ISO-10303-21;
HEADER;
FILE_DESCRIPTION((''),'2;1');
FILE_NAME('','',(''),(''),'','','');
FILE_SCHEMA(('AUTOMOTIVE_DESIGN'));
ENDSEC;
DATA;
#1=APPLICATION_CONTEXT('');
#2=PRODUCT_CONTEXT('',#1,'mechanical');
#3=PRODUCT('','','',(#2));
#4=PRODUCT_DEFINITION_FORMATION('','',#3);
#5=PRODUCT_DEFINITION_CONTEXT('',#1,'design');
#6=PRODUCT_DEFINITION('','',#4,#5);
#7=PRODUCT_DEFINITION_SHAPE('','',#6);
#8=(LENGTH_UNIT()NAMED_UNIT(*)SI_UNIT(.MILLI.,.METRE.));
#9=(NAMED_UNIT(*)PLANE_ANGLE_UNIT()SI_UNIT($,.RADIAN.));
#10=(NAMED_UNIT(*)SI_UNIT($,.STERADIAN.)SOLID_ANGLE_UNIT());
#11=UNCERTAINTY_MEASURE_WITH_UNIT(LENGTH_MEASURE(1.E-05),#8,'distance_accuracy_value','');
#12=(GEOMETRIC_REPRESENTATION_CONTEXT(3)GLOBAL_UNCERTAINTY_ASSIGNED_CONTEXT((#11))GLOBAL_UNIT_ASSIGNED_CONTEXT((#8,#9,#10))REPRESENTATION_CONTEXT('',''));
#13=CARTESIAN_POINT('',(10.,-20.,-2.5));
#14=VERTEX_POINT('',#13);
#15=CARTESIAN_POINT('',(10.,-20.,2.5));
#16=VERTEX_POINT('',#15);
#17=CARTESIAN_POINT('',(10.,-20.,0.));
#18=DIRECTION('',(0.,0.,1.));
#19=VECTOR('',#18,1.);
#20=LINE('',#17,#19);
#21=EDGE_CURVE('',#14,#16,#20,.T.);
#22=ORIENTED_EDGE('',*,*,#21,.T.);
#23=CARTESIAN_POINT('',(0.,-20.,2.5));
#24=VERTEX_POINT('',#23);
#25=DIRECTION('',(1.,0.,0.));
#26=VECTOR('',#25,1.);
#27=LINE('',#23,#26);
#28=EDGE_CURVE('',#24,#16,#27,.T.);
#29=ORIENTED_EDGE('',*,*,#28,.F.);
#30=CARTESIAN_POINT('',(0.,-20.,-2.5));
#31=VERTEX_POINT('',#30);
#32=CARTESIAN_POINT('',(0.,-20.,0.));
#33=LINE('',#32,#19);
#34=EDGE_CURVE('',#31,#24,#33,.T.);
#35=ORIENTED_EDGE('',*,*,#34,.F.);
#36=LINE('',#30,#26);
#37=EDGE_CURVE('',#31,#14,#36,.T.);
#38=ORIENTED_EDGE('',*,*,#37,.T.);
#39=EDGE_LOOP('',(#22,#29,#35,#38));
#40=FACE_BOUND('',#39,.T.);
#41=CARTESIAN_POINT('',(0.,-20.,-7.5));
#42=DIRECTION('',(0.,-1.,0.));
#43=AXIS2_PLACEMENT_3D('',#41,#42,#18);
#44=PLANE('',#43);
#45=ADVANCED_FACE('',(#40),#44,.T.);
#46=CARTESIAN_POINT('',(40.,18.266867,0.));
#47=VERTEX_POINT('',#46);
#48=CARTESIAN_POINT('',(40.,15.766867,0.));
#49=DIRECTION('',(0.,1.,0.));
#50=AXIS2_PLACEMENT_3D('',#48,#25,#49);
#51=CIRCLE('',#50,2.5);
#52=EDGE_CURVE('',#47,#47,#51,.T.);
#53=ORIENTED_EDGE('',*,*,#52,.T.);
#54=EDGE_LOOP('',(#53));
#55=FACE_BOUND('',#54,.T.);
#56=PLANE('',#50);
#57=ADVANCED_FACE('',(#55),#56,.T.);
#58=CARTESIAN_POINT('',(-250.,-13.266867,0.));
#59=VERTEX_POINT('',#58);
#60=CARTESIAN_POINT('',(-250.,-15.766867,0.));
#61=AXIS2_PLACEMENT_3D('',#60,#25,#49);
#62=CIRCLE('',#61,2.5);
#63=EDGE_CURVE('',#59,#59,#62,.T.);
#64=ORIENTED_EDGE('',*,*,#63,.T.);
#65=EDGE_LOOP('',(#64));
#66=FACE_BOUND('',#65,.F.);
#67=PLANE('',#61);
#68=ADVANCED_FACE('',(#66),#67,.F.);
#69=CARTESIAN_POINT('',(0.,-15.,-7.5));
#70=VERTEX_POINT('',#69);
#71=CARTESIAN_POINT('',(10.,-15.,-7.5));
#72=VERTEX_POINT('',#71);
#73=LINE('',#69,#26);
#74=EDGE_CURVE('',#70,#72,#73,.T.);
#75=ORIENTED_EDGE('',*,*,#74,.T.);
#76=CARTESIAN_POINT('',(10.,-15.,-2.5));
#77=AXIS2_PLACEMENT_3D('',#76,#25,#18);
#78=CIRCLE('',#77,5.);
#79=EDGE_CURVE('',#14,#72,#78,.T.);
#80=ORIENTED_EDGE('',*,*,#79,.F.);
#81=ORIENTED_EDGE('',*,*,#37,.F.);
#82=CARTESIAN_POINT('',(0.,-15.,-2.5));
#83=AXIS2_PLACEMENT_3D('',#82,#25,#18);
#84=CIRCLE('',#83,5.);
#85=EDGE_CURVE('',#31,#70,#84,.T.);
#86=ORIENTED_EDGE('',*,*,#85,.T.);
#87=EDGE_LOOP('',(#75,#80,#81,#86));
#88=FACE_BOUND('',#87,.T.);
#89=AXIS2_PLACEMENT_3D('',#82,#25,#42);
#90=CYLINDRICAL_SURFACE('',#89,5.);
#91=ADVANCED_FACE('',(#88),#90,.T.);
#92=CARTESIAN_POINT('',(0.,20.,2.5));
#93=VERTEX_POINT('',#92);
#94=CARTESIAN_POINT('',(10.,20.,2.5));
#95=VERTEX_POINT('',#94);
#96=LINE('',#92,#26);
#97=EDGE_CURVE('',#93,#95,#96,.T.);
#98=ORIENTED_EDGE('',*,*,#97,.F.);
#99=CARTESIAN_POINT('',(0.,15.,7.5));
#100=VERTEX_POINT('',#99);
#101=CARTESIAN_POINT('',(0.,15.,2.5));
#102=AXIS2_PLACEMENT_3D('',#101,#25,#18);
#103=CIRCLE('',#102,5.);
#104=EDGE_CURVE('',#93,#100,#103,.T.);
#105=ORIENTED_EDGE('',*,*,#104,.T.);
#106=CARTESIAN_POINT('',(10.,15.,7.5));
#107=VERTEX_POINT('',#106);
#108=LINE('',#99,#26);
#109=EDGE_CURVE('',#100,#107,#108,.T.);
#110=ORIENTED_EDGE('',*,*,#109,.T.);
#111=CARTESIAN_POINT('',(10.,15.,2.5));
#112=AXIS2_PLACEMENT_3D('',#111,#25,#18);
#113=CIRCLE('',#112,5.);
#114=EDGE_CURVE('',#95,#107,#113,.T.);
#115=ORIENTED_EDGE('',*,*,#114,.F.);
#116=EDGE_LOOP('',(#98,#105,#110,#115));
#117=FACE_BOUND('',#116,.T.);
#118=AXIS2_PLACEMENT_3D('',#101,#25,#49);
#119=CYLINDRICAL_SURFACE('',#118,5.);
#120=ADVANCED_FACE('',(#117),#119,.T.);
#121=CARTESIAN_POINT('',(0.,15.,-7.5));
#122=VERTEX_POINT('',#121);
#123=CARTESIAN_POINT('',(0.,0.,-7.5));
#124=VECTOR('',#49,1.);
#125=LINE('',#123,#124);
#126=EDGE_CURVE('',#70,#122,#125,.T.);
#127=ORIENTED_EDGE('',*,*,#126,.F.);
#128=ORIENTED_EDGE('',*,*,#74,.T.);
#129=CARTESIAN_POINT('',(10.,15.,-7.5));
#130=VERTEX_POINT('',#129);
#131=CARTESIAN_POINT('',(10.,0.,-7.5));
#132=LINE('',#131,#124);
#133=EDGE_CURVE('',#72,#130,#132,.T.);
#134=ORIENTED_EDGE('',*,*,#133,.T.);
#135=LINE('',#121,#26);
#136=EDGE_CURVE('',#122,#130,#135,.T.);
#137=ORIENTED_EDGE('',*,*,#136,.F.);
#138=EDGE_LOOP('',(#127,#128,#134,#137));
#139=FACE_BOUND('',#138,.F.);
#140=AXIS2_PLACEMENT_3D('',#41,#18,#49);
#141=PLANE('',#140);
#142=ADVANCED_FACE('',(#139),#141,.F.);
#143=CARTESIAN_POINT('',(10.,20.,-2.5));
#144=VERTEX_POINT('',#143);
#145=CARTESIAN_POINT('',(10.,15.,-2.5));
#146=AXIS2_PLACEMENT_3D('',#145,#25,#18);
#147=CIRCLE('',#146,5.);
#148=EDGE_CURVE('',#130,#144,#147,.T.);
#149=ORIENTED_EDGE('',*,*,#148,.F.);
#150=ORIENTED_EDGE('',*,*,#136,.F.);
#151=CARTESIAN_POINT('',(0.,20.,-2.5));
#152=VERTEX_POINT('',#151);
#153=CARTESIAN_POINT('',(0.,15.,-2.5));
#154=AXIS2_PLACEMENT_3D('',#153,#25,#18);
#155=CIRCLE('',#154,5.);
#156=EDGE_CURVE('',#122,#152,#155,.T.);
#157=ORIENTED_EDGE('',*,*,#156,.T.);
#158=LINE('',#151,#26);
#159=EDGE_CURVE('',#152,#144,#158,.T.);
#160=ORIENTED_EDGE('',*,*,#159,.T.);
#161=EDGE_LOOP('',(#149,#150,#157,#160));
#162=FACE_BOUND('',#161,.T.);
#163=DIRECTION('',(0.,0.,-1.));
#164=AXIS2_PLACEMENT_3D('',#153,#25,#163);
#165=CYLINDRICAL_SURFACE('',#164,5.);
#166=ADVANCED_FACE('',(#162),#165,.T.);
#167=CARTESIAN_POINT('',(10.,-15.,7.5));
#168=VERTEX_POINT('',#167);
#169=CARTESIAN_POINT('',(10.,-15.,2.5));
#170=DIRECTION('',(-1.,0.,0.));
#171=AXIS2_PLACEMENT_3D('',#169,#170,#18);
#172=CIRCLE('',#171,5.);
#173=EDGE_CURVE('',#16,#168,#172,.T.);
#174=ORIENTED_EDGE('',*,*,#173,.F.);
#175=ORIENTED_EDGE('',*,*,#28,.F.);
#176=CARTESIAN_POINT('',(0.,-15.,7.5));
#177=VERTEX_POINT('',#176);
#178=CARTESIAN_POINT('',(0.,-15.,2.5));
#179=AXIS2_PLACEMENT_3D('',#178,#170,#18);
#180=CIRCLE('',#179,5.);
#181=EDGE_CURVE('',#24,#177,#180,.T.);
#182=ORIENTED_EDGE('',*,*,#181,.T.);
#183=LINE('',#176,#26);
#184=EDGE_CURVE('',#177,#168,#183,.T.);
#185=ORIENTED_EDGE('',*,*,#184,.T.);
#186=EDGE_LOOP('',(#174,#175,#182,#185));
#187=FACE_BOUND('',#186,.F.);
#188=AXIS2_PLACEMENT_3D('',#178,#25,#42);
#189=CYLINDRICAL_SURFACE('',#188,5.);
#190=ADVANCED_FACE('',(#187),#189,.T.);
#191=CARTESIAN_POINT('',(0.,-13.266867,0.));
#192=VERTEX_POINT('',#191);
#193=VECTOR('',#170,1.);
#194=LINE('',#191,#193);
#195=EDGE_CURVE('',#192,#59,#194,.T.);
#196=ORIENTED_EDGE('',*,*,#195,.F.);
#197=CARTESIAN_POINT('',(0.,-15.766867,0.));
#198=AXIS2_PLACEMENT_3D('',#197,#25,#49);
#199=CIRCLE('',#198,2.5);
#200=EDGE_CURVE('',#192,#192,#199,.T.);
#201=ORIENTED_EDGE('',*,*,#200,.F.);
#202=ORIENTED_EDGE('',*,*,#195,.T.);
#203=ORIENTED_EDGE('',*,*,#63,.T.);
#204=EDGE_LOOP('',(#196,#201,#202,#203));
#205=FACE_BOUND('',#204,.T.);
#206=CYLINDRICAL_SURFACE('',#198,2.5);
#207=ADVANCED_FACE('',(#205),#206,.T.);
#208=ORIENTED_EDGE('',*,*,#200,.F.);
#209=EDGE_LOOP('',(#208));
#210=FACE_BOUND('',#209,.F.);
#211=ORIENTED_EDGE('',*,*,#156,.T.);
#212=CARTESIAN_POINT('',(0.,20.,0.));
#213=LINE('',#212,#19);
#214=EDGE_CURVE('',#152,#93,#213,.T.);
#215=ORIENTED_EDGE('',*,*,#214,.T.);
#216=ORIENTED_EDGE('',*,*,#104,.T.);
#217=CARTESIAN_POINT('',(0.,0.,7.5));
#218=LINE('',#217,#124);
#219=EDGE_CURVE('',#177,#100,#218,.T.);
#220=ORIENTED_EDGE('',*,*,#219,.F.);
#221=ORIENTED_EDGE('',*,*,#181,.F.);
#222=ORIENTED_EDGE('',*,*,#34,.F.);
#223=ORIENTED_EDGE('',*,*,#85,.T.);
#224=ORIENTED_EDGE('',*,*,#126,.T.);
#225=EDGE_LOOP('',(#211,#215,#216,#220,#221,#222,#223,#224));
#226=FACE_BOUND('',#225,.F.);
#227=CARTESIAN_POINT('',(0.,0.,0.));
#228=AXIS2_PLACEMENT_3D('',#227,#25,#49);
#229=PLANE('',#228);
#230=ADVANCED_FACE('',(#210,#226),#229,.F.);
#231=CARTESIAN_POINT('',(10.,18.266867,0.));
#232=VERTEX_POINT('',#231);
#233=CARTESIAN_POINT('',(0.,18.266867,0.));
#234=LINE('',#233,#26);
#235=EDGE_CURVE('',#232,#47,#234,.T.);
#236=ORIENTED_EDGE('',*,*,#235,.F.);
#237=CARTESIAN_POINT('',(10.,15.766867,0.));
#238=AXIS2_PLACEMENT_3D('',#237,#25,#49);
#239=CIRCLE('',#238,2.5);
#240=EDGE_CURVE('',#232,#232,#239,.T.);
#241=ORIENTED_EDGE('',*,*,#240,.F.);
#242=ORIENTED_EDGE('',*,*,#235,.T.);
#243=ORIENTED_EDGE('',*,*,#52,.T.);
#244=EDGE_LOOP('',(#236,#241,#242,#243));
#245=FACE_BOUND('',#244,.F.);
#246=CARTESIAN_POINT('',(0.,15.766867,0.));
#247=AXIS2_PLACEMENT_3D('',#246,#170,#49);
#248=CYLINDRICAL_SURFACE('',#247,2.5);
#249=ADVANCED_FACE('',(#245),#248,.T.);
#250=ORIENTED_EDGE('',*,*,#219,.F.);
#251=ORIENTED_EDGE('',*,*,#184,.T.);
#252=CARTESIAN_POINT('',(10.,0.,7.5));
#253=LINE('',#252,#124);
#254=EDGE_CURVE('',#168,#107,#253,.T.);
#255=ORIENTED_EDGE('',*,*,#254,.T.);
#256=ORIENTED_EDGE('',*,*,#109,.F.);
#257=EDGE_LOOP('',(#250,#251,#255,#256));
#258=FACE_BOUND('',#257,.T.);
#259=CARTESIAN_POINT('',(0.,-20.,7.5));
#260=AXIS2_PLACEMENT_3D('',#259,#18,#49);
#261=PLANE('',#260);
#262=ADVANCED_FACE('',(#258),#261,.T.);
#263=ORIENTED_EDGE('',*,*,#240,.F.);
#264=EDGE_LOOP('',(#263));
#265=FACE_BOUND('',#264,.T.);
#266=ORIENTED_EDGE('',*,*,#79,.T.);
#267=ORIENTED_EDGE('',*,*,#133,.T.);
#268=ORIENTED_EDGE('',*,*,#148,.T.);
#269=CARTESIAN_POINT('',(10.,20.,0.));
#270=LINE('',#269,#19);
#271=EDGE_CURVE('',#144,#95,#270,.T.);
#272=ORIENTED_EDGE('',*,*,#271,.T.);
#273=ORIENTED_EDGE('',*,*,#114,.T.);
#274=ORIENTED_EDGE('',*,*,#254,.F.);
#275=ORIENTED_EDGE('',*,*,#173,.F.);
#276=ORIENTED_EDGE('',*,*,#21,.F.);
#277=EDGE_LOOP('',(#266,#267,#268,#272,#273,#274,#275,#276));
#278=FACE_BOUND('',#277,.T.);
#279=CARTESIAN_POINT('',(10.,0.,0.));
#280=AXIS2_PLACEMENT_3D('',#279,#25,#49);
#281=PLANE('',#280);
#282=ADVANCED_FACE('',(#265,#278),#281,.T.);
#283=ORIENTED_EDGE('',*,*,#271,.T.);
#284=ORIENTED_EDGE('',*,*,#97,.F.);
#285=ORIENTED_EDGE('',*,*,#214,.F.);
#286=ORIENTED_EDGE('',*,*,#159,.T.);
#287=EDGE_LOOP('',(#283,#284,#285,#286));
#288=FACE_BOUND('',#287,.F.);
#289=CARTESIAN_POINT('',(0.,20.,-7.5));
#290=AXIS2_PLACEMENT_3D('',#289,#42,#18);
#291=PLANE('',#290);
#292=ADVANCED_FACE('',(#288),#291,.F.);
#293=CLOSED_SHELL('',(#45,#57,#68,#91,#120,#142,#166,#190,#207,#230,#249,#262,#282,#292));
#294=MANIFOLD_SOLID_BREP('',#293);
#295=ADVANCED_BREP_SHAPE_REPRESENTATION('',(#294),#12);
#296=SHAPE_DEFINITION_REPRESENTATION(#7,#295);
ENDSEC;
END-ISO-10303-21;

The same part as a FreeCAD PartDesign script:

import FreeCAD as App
import Part
import Sketcher

V = App.Vector


def edges_at(feature, points):
    """Names of the edges that pass closest to the given points."""
    edges = feature.Shape.Edges
    near = lambda p: min(range(len(edges)), key=lambda i: edges[i].distToShape(Part.Vertex(*p))[0])
    return sorted({f"Edge{near(p) + 1}" for p in points})


def add_polygon(sketch, points):
    """Adds a closed chain of lines whose ends are joined by coincident constraints."""
    first, n = sketch.GeometryCount, len(points)
    for a, b in zip(points, points[1:] + points[:1]):
        sketch.addGeometry(Part.LineSegment(App.Vector(*a, 0), App.Vector(*b, 0)), False)
    for i in range(n):
        sketch.addConstraint(Sketcher.Constraint("Coincident", first + i, 2, first + (i + 1) % n, 1))

doc = App.newDocument("Part")
body = doc.addObject("PartDesign::Body", "Body")

# Sketch on YZ plane
sketch1 = body.newObject("Sketcher::SketchObject", "Sketch")
sketch1.AttachmentSupport = (doc.getObject("YZ_Plane"), [""])
sketch1.MapMode = "FlatFace"
add_polygon(sketch1, [(-20, 7.5), (-20, -7.5), (20, -7.5), (20, 7.5)])  # lines 0-3
sketch1.addGeometry(Part.Circle(V(15.8, 0, 0), V(0, 0, 1), 2.5), False)  # 4
sketch1.addConstraint([
    Sketcher.Constraint("Vertical", 0),
    Sketcher.Constraint("Horizontal", 1),
    Sketcher.Constraint("Vertical", 2),
    Sketcher.Constraint("Horizontal", 3),
    Sketcher.Constraint("Symmetric", 0, 2, 2, 2, -1, 1),
    Sketcher.Constraint("PointOnObject", 4, 3, -1),
    Sketcher.Constraint("Diameter", 4, 5.0),
    Sketcher.Constraint("DistanceX", 1, 1, 1, 2, 40.0),
    Sketcher.Constraint("DistanceY", 0, 2, 0, 1, 15.0),
    Sketcher.Constraint("DistanceX", -1, 1, 4, 3, 15.766867),
])
pad1 = body.newObject("PartDesign::Pad", "Pad")
pad1.Profile = sketch1
pad1.Length = 10
doc.recompute()

fillet = body.newObject("PartDesign::Fillet", "Fillet")
fillet.Base = (pad1, edges_at(pad1, [
    (5, -20, 7.5),
    (5, 20, 7.5),
    (5, -20, -7.5),
    (5, 20, -7.5),
]))
fillet.Radius = 5

# Sketch on YZ plane
sketch2 = body.newObject("Sketcher::SketchObject", "Sketch001")
sketch2.AttachmentSupport = (doc.getObject("YZ_Plane"), [""])
sketch2.MapMode = "FlatFace"
sketch2.addGeometry(Part.Circle(V(15.8, 0, 0), V(0, 0, 1), 2.5), False)
sketch2.addConstraint([
    Sketcher.Constraint("PointOnObject", 0, 3, -1),
    Sketcher.Constraint("Diameter", 0, 5.0),
    Sketcher.Constraint("DistanceX", -1, 1, 0, 3, 15.766867),
])
pad2 = body.newObject("PartDesign::Pad", "Pad001")
pad2.Profile = sketch2
pad2.Length = 40

# Sketch on YZ plane
sketch3 = body.newObject("Sketcher::SketchObject", "Sketch002")
sketch3.AttachmentSupport = (doc.getObject("YZ_Plane"), [""])
sketch3.MapMode = "FlatFace"
sketch3.addGeometry(Part.Circle(V(-15.8, 0, 0), V(0, 0, 1), 2.5), False)
sketch3.addConstraint([
    Sketcher.Constraint("PointOnObject", 0, 3, -1),
    Sketcher.Constraint("Diameter", 0, 5.0),
    Sketcher.Constraint("DistanceX", 0, 3, -1, 1, 15.766867),
])
pad3 = body.newObject("PartDesign::Pad", "Pad002")
pad3.Profile = sketch3
pad3.Length = 250
pad3.Reversed = True

doc.recompute()
